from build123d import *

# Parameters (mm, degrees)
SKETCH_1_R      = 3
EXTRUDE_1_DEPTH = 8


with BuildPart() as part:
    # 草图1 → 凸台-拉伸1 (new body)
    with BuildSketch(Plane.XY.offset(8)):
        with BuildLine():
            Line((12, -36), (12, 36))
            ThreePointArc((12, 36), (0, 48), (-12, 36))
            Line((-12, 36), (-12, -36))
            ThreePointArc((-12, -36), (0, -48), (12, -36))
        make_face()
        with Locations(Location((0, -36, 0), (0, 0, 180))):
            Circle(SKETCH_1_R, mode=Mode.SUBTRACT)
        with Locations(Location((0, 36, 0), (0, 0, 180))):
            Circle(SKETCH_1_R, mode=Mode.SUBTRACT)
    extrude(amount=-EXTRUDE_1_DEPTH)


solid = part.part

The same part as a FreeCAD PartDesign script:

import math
import FreeCAD as App
import Part
import Sketcher
from FreeCAD import Vector
Q = App.Units.Quantity

doc = App.newDocument("Part")
body = doc.addObject("PartDesign::Body", "Body")

sketch1 = doc.addObject("Sketcher::SketchObject", "Sketch")
body.addObject(sketch1)
sketch1.AttachmentSupport = (doc.XY_Plane, [""])
sketch1.MapMode = "FlatFace"
sketch1.AttachmentOffset = App.Placement(Vector(0, 0, 8), App.Rotation())
sketch1.addGeometry([
    Part.LineSegment(Vector(12, -36, 0), Vector(12, 36, 0)),
    Part.ArcOfCircle(Part.Circle(Vector(0, 36, 0), Vector(0, 0, 1), 12), math.radians(0), math.radians(180)),
    Part.LineSegment(Vector(-12, 36, 0), Vector(-12, -36, 0)),
    Part.ArcOfCircle(Part.Circle(Vector(0, -36, 0), Vector(0, 0, 1), 12), math.radians(180), math.radians(360)),
    Part.Circle(Vector(0, -36, 0), Vector(0, 0, 1), 3),
    Part.Circle(Vector(0, 36, 0), Vector(0, 0, 1), 3),
], False)
sketch1.addConstraint([
    Sketcher.Constraint("Tangent", 0, 2, 1, 1),
    Sketcher.Constraint("Tangent", 1, 2, 2, 1),
    Sketcher.Constraint("Tangent", 2, 2, 3, 1),
    Sketcher.Constraint("Tangent", 3, 2, 0, 1),
    Sketcher.Constraint("Vertical", 0),
    Sketcher.Constraint("Vertical", 2),
    Sketcher.Constraint("Coincident", 4, 3, 3, 3),
    Sketcher.Constraint("Coincident", 5, 3, 1, 3),
    Sketcher.Constraint("Equal", 4, 5),
    Sketcher.Constraint("Symmetric", 1, 3, 3, 3, -1, 1),
    Sketcher.Constraint("Diameter", 4, Q("6 mm")),
    Sketcher.Constraint("Radius", 1, Q("12 mm")),
    Sketcher.Constraint("DistanceY", 0, 1, 0, 2, Q("72 mm")),
])
pad1 = doc.addObject("PartDesign::Pad", "Pad")
body.addObject(pad1)
pad1.Profile = sketch1
pad1.Length = 8
pad1.Reversed = True

doc.recompute()
